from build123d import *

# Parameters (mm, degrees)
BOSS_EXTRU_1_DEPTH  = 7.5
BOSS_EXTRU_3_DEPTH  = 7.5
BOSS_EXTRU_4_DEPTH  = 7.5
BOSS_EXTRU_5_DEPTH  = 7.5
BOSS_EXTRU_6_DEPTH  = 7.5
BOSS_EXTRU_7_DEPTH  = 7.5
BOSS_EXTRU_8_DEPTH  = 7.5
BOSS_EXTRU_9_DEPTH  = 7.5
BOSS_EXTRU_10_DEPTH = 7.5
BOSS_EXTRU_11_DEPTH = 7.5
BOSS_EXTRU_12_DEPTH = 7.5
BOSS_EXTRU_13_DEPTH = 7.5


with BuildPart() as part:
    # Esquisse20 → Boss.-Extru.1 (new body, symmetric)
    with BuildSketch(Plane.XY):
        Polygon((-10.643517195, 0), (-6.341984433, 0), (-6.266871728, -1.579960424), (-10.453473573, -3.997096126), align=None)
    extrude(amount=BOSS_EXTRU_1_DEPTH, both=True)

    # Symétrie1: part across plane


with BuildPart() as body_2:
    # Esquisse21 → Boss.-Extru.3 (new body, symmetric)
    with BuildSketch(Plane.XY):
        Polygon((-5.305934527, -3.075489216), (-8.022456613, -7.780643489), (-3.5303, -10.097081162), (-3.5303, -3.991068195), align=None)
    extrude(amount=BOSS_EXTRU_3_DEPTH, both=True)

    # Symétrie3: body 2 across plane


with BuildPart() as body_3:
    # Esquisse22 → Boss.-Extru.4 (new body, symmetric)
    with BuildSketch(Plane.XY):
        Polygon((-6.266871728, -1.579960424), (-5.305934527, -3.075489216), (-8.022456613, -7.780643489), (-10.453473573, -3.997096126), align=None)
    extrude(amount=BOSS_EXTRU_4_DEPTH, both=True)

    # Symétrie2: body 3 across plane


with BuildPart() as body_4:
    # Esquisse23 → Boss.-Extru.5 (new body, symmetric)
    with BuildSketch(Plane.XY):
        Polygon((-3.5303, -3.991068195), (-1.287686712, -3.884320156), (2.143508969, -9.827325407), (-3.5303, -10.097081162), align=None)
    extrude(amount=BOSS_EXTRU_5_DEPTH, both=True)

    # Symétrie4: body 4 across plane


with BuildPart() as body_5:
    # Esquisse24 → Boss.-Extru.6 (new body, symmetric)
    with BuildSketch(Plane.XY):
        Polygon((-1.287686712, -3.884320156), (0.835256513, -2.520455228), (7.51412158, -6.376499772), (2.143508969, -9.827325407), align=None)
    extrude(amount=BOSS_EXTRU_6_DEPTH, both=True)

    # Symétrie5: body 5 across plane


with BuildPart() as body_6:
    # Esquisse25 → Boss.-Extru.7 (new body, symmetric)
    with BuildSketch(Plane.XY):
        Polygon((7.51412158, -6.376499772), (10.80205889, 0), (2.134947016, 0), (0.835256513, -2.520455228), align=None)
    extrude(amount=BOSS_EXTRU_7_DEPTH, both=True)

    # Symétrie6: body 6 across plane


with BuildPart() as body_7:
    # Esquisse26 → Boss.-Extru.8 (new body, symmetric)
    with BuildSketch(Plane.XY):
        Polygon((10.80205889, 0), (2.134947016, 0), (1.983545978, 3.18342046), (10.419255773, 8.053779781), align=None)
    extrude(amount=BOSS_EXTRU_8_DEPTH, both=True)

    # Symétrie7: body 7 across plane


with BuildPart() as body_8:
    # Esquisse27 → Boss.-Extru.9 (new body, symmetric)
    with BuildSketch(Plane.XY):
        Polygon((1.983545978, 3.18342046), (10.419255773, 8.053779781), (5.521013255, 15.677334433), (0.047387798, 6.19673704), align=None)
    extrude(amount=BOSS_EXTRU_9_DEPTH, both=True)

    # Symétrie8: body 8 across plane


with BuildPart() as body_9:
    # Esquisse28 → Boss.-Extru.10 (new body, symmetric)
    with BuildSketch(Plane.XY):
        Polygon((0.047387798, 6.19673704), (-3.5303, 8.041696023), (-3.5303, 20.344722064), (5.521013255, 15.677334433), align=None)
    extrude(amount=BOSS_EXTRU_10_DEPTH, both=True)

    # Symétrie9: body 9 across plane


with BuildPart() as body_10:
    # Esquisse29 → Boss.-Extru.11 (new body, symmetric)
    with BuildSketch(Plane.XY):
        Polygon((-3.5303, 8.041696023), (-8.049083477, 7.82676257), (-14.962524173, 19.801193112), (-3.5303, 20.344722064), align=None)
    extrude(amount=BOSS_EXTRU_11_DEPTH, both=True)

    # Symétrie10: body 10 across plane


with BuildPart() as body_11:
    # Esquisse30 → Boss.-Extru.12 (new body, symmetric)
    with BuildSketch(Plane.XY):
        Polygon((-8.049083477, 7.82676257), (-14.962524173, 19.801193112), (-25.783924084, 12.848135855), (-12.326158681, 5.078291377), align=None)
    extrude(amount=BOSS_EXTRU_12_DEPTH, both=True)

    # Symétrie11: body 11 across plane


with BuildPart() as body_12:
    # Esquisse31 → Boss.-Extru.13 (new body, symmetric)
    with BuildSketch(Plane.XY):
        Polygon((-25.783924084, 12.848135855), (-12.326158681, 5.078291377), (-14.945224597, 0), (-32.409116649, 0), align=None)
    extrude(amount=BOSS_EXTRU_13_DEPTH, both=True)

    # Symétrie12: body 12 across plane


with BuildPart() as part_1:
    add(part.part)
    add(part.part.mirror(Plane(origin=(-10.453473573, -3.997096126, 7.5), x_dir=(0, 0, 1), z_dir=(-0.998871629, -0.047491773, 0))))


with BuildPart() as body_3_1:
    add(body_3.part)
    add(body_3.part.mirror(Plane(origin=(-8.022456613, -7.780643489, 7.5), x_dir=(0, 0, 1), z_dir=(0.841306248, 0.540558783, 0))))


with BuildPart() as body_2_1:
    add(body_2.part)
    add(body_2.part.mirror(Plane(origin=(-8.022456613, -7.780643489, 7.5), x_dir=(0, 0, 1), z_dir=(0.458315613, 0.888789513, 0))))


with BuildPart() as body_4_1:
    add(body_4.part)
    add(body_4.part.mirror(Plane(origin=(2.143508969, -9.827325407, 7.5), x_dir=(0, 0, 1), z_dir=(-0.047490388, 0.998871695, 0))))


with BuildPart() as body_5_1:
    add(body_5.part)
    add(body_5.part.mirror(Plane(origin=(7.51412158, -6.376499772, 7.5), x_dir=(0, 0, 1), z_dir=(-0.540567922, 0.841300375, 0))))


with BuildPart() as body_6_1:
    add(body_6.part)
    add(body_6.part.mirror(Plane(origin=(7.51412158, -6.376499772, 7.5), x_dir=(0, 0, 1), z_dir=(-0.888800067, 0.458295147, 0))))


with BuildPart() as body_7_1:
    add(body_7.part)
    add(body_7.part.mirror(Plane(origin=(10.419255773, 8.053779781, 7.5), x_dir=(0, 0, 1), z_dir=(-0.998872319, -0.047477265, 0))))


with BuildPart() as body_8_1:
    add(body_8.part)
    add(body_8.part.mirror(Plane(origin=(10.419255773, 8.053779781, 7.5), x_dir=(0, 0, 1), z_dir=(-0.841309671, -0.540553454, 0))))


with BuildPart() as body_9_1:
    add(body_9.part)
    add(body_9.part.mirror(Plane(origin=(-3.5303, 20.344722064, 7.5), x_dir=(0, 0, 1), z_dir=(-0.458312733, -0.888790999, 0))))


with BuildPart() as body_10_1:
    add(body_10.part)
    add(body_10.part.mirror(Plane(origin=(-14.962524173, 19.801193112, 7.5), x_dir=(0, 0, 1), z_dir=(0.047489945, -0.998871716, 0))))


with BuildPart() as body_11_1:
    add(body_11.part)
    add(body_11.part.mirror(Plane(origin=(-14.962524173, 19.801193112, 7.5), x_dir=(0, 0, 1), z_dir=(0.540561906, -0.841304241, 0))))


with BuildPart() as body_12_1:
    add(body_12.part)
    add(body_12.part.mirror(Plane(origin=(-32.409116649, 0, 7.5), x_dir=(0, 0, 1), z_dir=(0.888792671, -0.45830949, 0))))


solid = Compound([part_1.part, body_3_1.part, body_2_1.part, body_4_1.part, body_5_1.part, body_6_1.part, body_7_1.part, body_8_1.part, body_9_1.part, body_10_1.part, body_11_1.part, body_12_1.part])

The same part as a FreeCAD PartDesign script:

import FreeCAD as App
import Part
import Sketcher
from FreeCAD import Vector
Q = App.Units.Quantity

doc = App.newDocument("Part")
body = doc.addObject("PartDesign::Body", "Body")

# Sketch on XY plane
sketch1 = body.newObject("Sketcher::SketchObject", "Sketch")
sketch1.AttachmentSupport = (doc.getObject("XY_Plane"), [""])
sketch1.MapMode = "FlatFace"
sketch1.addGeometry([
    Part.LineSegment(Vector(-6.341984, 0, 0), Vector(-10.643517, 0, 0)),
    Part.LineSegment(Vector(-10.643517, 0, 0), Vector(-10.453474, -3.997096, 0)),
    Part.LineSegment(Vector(-10.453474, -3.997096, 0), Vector(-6.266872, -1.57996, 0)),
    Part.LineSegment(Vector(-6.266872, -1.57996, 0), Vector(-6.341984, 0, 0)),
], False)
sketch1.addConstraint([
    Sketcher.Constraint("Coincident", 0, 2, 1, 1),
    Sketcher.Constraint("Coincident", 1, 2, 2, 1),
    Sketcher.Constraint("Coincident", 2, 2, 3, 1),
    Sketcher.Constraint("Coincident", 3, 2, 0, 1),
    Sketcher.Constraint("Horizontal", 0),
    Sketcher.Constraint("PointOnObject", 0, 2, -1),
    Sketcher.Constraint("Angle", 2, Q("30 deg")),
    Sketcher.Constraint("DistanceX", 1, 2, 2, 2, Q("4.186602 mm")),
    Sketcher.Constraint("Distance", 1, Q("4.001611 mm")),
    Sketcher.Constraint("DistanceX", 0, 2, 0, 1, Q("4.301533 mm")),
    Sketcher.Constraint("DistanceX", 2, 2, -1, 1, Q("6.266872 mm")),
    Sketcher.Constraint("DistanceY", 2, 2, -1, 1, Q("1.57996 mm")),
])
pad1 = body.newObject("PartDesign::Pad", "Pad")
pad1.Profile = sketch1
pad1.Length = 15
pad1.Midplane = True
body2 = doc.addObject("PartDesign::Body", "Body001")

# Sketch on XY plane
sketch2 = body2.newObject("Sketcher::SketchObject", "Sketch001")
sketch2.AttachmentSupport = (doc.getObject("XY_Plane001"), [""])
sketch2.MapMode = "FlatFace"
sketch2.addGeometry([
    Part.LineSegment(Vector(-5.305935, -3.075489, 0), Vector(-8.022457, -7.780643, 0)),
    Part.LineSegment(Vector(-8.022457, -7.780643, 0), Vector(-3.5303, -10.097081, 0)),
    Part.LineSegment(Vector(-3.5303, -10.097081, 0), Vector(-3.5303, -3.991068, 0)),
    Part.LineSegment(Vector(-3.5303, -3.991068, 0), Vector(-5.305935, -3.075489, 0)),
], False)
sketch2.addConstraint([
    Sketcher.Constraint("Coincident", 0, 2, 1, 1),
    Sketcher.Constraint("Coincident", 1, 2, 2, 1),
    Sketcher.Constraint("Coincident", 2, 2, 3, 1),
    Sketcher.Constraint("Coincident", 3, 2, 0, 1),
    Sketcher.Constraint("Vertical", 2),
    Sketcher.Constraint("Angle", 0, Q("-120 deg")),
    Sketcher.Constraint("DistanceX", 1, 2, -1, 1, Q("3.5303 mm")),
    Sketcher.Constraint("Distance", 1, Q("5.054241 mm")),
    Sketcher.Constraint("Distance", 3, Q("1.997789 mm")),
    Sketcher.Constraint("DistanceY", 2, 1, 2, 2, Q("6.106013 mm")),
    Sketcher.Constraint("DistanceY", 1, 2, -1, 1, Q("10.097081 mm")),
    Sketcher.Constraint("DistanceY", 3, 2, -1, 1, Q("3.075489 mm")),
])
pad2 = body2.newObject("PartDesign::Pad", "Pad001")
pad2.Profile = sketch2
pad2.Length = 15
pad2.Midplane = True
body3 = doc.addObject("PartDesign::Body", "Body002")

# Sketch on XY plane
sketch3 = body3.newObject("Sketcher::SketchObject", "Sketch002")
sketch3.AttachmentSupport = (doc.getObject("XY_Plane002"), [""])
sketch3.MapMode = "FlatFace"
sketch3.addGeometry([
    Part.LineSegment(Vector(-5.305935, -3.075489, 0), Vector(-6.266872, -1.57996, 0)),
    Part.LineSegment(Vector(-6.266872, -1.57996, 0), Vector(-10.453474, -3.997096, 0)),
    Part.LineSegment(Vector(-10.453474, -3.997096, 0), Vector(-8.022457, -7.780643, 0)),
    Part.LineSegment(Vector(-8.022457, -7.780643, 0), Vector(-5.305935, -3.075489, 0)),
], False)
sketch3.addConstraint([
    Sketcher.Constraint("Coincident", 0, 2, 1, 1),
    Sketcher.Constraint("Coincident", 1, 2, 2, 1),
    Sketcher.Constraint("Coincident", 2, 2, 3, 1),
    Sketcher.Constraint("Coincident", 3, 2, 0, 1),
    Sketcher.Constraint("Angle", 1, Q("-150 deg")),
    Sketcher.Constraint("Angle", 3, Q("60 deg")),
    Sketcher.Constraint("DistanceX", 1, 2, 0, 2, Q("4.186602 mm")),
    Sketcher.Constraint("Distance", 0, Q("1.777641 mm")),
    Sketcher.Constraint("Distance", 2, Q("4.49723 mm")),
    Sketcher.Constraint("DistanceX", 0, 2, -1, 1, Q("6.266872 mm")),
    Sketcher.Constraint("DistanceY", 0, 2, -1, 1, Q("1.57996 mm")),
    Sketcher.Constraint("DistanceY", 3, 2, -1, 1, Q("3.075489 mm")),
])
pad3 = body3.newObject("PartDesign::Pad", "Pad002")
pad3.Profile = sketch3
pad3.Length = 15
pad3.Midplane = True
body4 = doc.addObject("PartDesign::Body", "Body003")

# Sketch on XY plane
sketch4 = body4.newObject("Sketcher::SketchObject", "Sketch003")
sketch4.AttachmentSupport = (doc.getObject("XY_Plane003"), [""])
sketch4.MapMode = "FlatFace"
sketch4.addGeometry([
    Part.LineSegment(Vector(-1.287687, -3.88432, 0), Vector(-3.5303, -3.991068, 0)),
    Part.LineSegment(Vector(-3.5303, -3.991068, 0), Vector(-3.5303, -10.097081, 0)),
    Part.LineSegment(Vector(-3.5303, -10.097081, 0), Vector(2.143509, -9.827325, 0)),
    Part.LineSegment(Vector(2.143509, -9.827325, 0), Vector(-1.287687, -3.88432, 0)),
], False)
sketch4.addConstraint([
    Sketcher.Constraint("Coincident", 0, 2, 1, 1),
    Sketcher.Constraint("Coincident", 1, 2, 2, 1),
    Sketcher.Constraint("Coincident", 2, 2, 3, 1),
    Sketcher.Constraint("Coincident", 3, 2, 0, 1),
    Sketcher.Constraint("Vertical", 1),
    Sketcher.Constraint("Angle", 3, Q("120 deg")),
    Sketcher.Constraint("DistanceX", 0, 2, -1, 1, Q("3.5303 mm")),
    Sketcher.Constraint("Distance", 3, Q("6.862391 mm")),
    Sketcher.Constraint("DistanceY", 1, 2, 1, 1, Q("6.106013 mm")),
    Sketcher.Constraint("DistanceY", 0, 2, -1, 1, Q("3.991068 mm")),
    Sketcher.Constraint("DistanceX", -1, 1, 2, 2, Q("2.143509 mm")),
    Sketcher.Constraint("DistanceY", 3, 2, -1, 1, Q("3.88432 mm")),
])
pad4 = body4.newObject("PartDesign::Pad", "Pad003")
pad4.Profile = sketch4
pad4.Length = 15
pad4.Midplane = True
body5 = doc.addObject("PartDesign::Body", "Body004")

# Sketch on XY plane
sketch5 = body5.newObject("Sketcher::SketchObject", "Sketch004")
sketch5.AttachmentSupport = (doc.getObject("XY_Plane004"), [""])
sketch5.MapMode = "FlatFace"
sketch5.addGeometry([
    Part.LineSegment(Vector(0.835257, -2.520455, 0), Vector(-1.287687, -3.88432, 0)),
    Part.LineSegment(Vector(-1.287687, -3.88432, 0), Vector(2.143509, -9.827325, 0)),
    Part.LineSegment(Vector(2.143509, -9.827325, 0), Vector(7.514122, -6.3765, 0)),
    Part.LineSegment(Vector(7.514122, -6.3765, 0), Vector(0.835257, -2.520455, 0)),
], False)
sketch5.addConstraint([
    Sketcher.Constraint("Coincident", 0, 2, 1, 1),
    Sketcher.Constraint("Coincident", 1, 2, 2, 1),
    Sketcher.Constraint("Coincident", 2, 2, 3, 1),
    Sketcher.Constraint("Coincident", 3, 2, 0, 1),
    Sketcher.Constraint("Angle", 1, Q("-60 deg")),
    Sketcher.Constraint("Angle", 3, Q("150 deg")),
    Sketcher.Constraint("DistanceY", 2, 2, -1, 1, Q("6.3765 mm")),
    Sketcher.Constraint("Distance", 1, Q("6.862391 mm")),
    Sketcher.Constraint("Distance", 3, Q("7.712089 mm")),
    Sketcher.Constraint("DistanceY", 0, 2, -1, 1, Q("3.88432 mm")),
    Sketcher.Constraint("DistanceX", -1, 1, 1, 2, Q("2.143509 mm")),
    Sketcher.Constraint("DistanceX", -1, 1, 2, 2, Q("7.514122 mm")),
])
pad5 = body5.newObject("PartDesign::Pad", "Pad004")
pad5.Profile = sketch5
pad5.Length = 15
pad5.Midplane = True
body6 = doc.addObject("PartDesign::Body", "Body005")

# Sketch on XY plane
sketch6 = body6.newObject("Sketcher::SketchObject", "Sketch005")
sketch6.AttachmentSupport = (doc.getObject("XY_Plane005"), [""])
sketch6.MapMode = "FlatFace"
sketch6.addGeometry([
    Part.LineSegment(Vector(7.514122, -6.3765, 0), Vector(10.802059, 0, 0)),
    Part.LineSegment(Vector(10.802059, 0, 0), Vector(2.134947, 0, 0)),
    Part.LineSegment(Vector(2.134947, 0, 0), Vector(0.835257, -2.520455, 0)),
    Part.LineSegment(Vector(0.835257, -2.520455, 0), Vector(7.514122, -6.3765, 0)),
], False)
sketch6.addConstraint([
    Sketcher.Constraint("Coincident", 0, 2, 1, 1),
    Sketcher.Constraint("Coincident", 1, 2, 2, 1),
    Sketcher.Constraint("Coincident", 2, 2, 3, 1),
    Sketcher.Constraint("Coincident", 3, 2, 0, 1),
    Sketcher.Constraint("Horizontal", 1),
    Sketcher.Constraint("PointOnObject", 0, 2, -1),
    Sketcher.Constraint("Angle", 3, Q("-30 deg")),
    Sketcher.Constraint("DistanceX", 1, 2, 1, 1, Q("8.667112 mm")),
    Sketcher.Constraint("DistanceY", 3, 2, -1, 1, Q("6.3765 mm")),
    Sketcher.Constraint("Distance", 0, Q("7.174279 mm")),
    Sketcher.Constraint("Distance", 3, Q("7.712089 mm")),
    Sketcher.Constraint("DistanceX", -1, 1, 0, 2, Q("10.802059 mm")),
])
pad6 = body6.newObject("PartDesign::Pad", "Pad005")
pad6.Profile = sketch6
pad6.Length = 15
pad6.Midplane = True
body7 = doc.addObject("PartDesign::Body", "Body006")

# Sketch on XY plane
sketch7 = body7.newObject("Sketcher::SketchObject", "Sketch006")
sketch7.AttachmentSupport = (doc.getObject("XY_Plane006"), [""])
sketch7.MapMode = "FlatFace"
sketch7.addGeometry([
    Part.LineSegment(Vector(2.134947, 0, 0), Vector(10.802059, 0, 0)),
    Part.LineSegment(Vector(10.802059, 0, 0), Vector(10.419256, 8.05378, 0)),
    Part.LineSegment(Vector(10.419256, 8.05378, 0), Vector(1.983546, 3.18342, 0)),
    Part.LineSegment(Vector(1.983546, 3.18342, 0), Vector(2.134947, 0, 0)),
], False)
sketch7.addConstraint([
    Sketcher.Constraint("Coincident", 0, 2, 1, 1),
    Sketcher.Constraint("Coincident", 1, 2, 2, 1),
    Sketcher.Constraint("Coincident", 2, 2, 3, 1),
    Sketcher.Constraint("Coincident", 3, 2, 0, 1),
    Sketcher.Constraint("Horizontal", 0),
    Sketcher.Constraint("PointOnObject", 0, 2, -1),
    Sketcher.Constraint("Angle", 2, Q("-150 deg")),
    Sketcher.Constraint("DistanceX", 0, 1, 0, 2, Q("8.667112 mm")),
    Sketcher.Constraint("DistanceX", 2, 2, 3, 2, Q("0.151401 mm")),
    Sketcher.Constraint("Distance", 2, Q("9.740719 mm")),
    Sketcher.Constraint("Distance", 3, Q("3.187019 mm")),
    Sketcher.Constraint("DistanceX", -1, 1, 0, 2, Q("10.802059 mm")),
])
pad7 = body7.newObject("PartDesign::Pad", "Pad006")
pad7.Profile = sketch7
pad7.Length = 15
pad7.Midplane = True
body8 = doc.addObject("PartDesign::Body", "Body007")

# Sketch on XY plane
sketch8 = body8.newObject("Sketcher::SketchObject", "Sketch007")
sketch8.AttachmentSupport = (doc.getObject("XY_Plane007"), [""])
sketch8.MapMode = "FlatFace"
sketch8.addGeometry([
    Part.LineSegment(Vector(1.983546, 3.18342, 0), Vector(10.419256, 8.05378, 0)),
    Part.LineSegment(Vector(10.419256, 8.05378, 0), Vector(5.521013, 15.677334, 0)),
    Part.LineSegment(Vector(5.521013, 15.677334, 0), Vector(0.047388, 6.196737, 0)),
    Part.LineSegment(Vector(0.047388, 6.196737, 0), Vector(1.983546, 3.18342, 0)),
], False)
sketch8.addConstraint([
    Sketcher.Constraint("Coincident", 0, 2, 1, 1),
    Sketcher.Constraint("Coincident", 1, 2, 2, 1),
    Sketcher.Constraint("Coincident", 2, 2, 3, 1),
    Sketcher.Constraint("Coincident", 3, 2, 0, 1),
    Sketcher.Constraint("Angle", 0, Q("30 deg")),
    Sketcher.Constraint("Angle", 2, Q("-120 deg")),
    Sketcher.Constraint("Distance", 0, Q("9.740719 mm")),
    Sketcher.Constraint("Distance", 2, Q("10.947251 mm")),
    Sketcher.Constraint("Distance", 3, Q("3.581729 mm")),
    Sketcher.Constraint("DistanceY", -1, 1, 0, 2, Q("8.05378 mm")),
    Sketcher.Constraint("DistanceX", 2, 2, 3, 2, Q("1.936158 mm")),
    Sketcher.Constraint("DistanceX", -1, 1, 0, 2, Q("10.419256 mm")),
])
pad8 = body8.newObject("PartDesign::Pad", "Pad007")
pad8.Profile = sketch8
pad8.Length = 15
pad8.Midplane = True
body9 = doc.addObject("PartDesign::Body", "Body008")

# Sketch on XY plane
sketch9 = body9.newObject("Sketcher::SketchObject", "Sketch008")
sketch9.AttachmentSupport = (doc.getObject("XY_Plane008"), [""])
sketch9.MapMode = "FlatFace"
sketch9.addGeometry([
    Part.LineSegment(Vector(-3.5303, 8.041696, 0), Vector(0.047388, 6.196737, 0)),
    Part.LineSegment(Vector(0.047388, 6.196737, 0), Vector(5.521013, 15.677334, 0)),
    Part.LineSegment(Vector(5.521013, 15.677334, 0), Vector(-3.5303, 20.344722, 0)),
    Part.LineSegment(Vector(-3.5303, 20.344722, 0), Vector(-3.5303, 8.041696, 0)),
], False)
sketch9.addConstraint([
    Sketcher.Constraint("Coincident", 0, 2, 1, 1),
    Sketcher.Constraint("Coincident", 1, 2, 2, 1),
    Sketcher.Constraint("Coincident", 2, 2, 3, 1),
    Sketcher.Constraint("Coincident", 3, 2, 0, 1),
    Sketcher.Constraint("Vertical", 3),
    Sketcher.Constraint("Angle", 1, Q("60 deg")),
    Sketcher.Constraint("DistanceX", 2, 2, -1, 1, Q("3.5303 mm")),
    Sketcher.Constraint("Distance", 1, Q("10.947251 mm")),
    Sketcher.Constraint("Distance", 2, Q("10.183849 mm")),
    Sketcher.Constraint("DistanceY", 3, 2, 3, 1, Q("12.303026 mm")),
    Sketcher.Constraint("DistanceY", 0, 2, 3, 2, Q("1.844959 mm")),
    Sketcher.Constraint("DistanceY", -1, 1, 0, 2, Q("6.196737 mm")),
])
pad9 = body9.newObject("PartDesign::Pad", "Pad008")
pad9.Profile = sketch9
pad9.Length = 15
pad9.Midplane = True
body10 = doc.addObject("PartDesign::Body", "Body009")

# Sketch on XY plane
sketch10 = body10.newObject("Sketcher::SketchObject", "Sketch009")
sketch10.AttachmentSupport = (doc.getObject("XY_Plane009"), [""])
sketch10.MapMode = "FlatFace"
sketch10.addGeometry([
    Part.LineSegment(Vector(-8.049083, 7.826763, 0), Vector(-3.5303, 8.041696, 0)),
    Part.LineSegment(Vector(-3.5303, 8.041696, 0), Vector(-3.5303, 20.344722, 0)),
    Part.LineSegment(Vector(-3.5303, 20.344722, 0), Vector(-14.962524, 19.801193, 0)),
    Part.LineSegment(Vector(-14.962524, 19.801193, 0), Vector(-8.049083, 7.826763, 0)),
], False)
sketch10.addConstraint([
    Sketcher.Constraint("Coincident", 0, 2, 1, 1),
    Sketcher.Constraint("Coincident", 1, 2, 2, 1),
    Sketcher.Constraint("Coincident", 2, 2, 3, 1),
    Sketcher.Constraint("Coincident", 3, 2, 0, 1),
    Sketcher.Constraint("Vertical", 1),
    Sketcher.Constraint("Angle", 3, Q("-60 deg")),
    Sketcher.Constraint("DistanceX", 0, 2, -1, 1, Q("3.5303 mm")),
    Sketcher.Constraint("Distance", 3, Q("13.826881 mm")),
    Sketcher.Constraint("DistanceY", 1, 1, 1, 2, Q("12.303026 mm")),
    Sketcher.Constraint("DistanceY", 2, 2, 1, 2, Q("0.543529 mm")),
    Sketcher.Constraint("Distance", 0, Q("4.523892 mm")),
    Sketcher.Constraint("DistanceY", -1, 1, 0, 2, Q("8.041696 mm")),
])
pad10 = body10.newObject("PartDesign::Pad", "Pad009")
pad10.Profile = sketch10
pad10.Length = 15
pad10.Midplane = True
body11 = doc.addObject("PartDesign::Body", "Body010")

# Sketch on XY plane
sketch11 = body11.newObject("Sketcher::SketchObject", "Sketch010")
sketch11.AttachmentSupport = (doc.getObject("XY_Plane010"), [""])
sketch11.MapMode = "FlatFace"
sketch11.addGeometry([
    Part.LineSegment(Vector(-8.049083, 7.826763, 0), Vector(-14.962524, 19.801193, 0)),
    Part.LineSegment(Vector(-14.962524, 19.801193, 0), Vector(-25.783924, 12.848136, 0)),
    Part.LineSegment(Vector(-25.783924, 12.848136, 0), Vector(-12.326159, 5.078291, 0)),
    Part.LineSegment(Vector(-12.326159, 5.078291, 0), Vector(-8.049083, 7.826763, 0)),
], False)
sketch11.addConstraint([
    Sketcher.Constraint("Coincident", 0, 2, 1, 1),
    Sketcher.Constraint("Coincident", 1, 2, 2, 1),
    Sketcher.Constraint("Coincident", 2, 2, 3, 1),
    Sketcher.Constraint("Coincident", 3, 2, 0, 1),
    Sketcher.Constraint("Angle", 0, Q("120 deg")),
    Sketcher.Constraint("Angle", 2, Q("-30 deg")),
    Sketcher.Constraint("DistanceX", 1, 2, 0, 2, Q("10.8214 mm")),
    Sketcher.Constraint("DistanceY", 2, 2, 0, 2, Q("14.722902 mm")),
    Sketcher.Constraint("Distance", 0, Q("13.826881 mm")),
    Sketcher.Constraint("Distance", 2, Q("15.539689 mm")),
    Sketcher.Constraint("DistanceX", 2, 2, -1, 1, Q("12.326159 mm")),
    Sketcher.Constraint("DistanceY", -1, 1, 2, 2, Q("5.078291 mm")),
])
pad11 = body11.newObject("PartDesign::Pad", "Pad010")
pad11.Profile = sketch11
pad11.Length = 15
pad11.Midplane = True
body12 = doc.addObject("PartDesign::Body", "Body011")

# Sketch on XY plane
sketch12 = body12.newObject("Sketcher::SketchObject", "Sketch011")
sketch12.AttachmentSupport = (doc.getObject("XY_Plane011"), [""])
sketch12.MapMode = "FlatFace"
sketch12.addGeometry([
    Part.LineSegment(Vector(-12.326159, 5.078291, 0), Vector(-25.783924, 12.848136, 0)),
    Part.LineSegment(Vector(-25.783924, 12.848136, 0), Vector(-32.409117, 0, 0)),
    Part.LineSegment(Vector(-32.409117, 0, 0), Vector(-14.945225, 0, 0)),
    Part.LineSegment(Vector(-14.945225, 0, 0), Vector(-12.326159, 5.078291, 0)),
], False)
sketch12.addConstraint([
    Sketcher.Constraint("Coincident", 0, 2, 1, 1),
    Sketcher.Constraint("Coincident", 1, 2, 2, 1),
    Sketcher.Constraint("Coincident", 2, 2, 3, 1),
    Sketcher.Constraint("Coincident", 3, 2, 0, 1),
    Sketcher.Constraint("Horizontal", 2),
    Sketcher.Constraint("PointOnObject", 1, 2, -1),
    Sketcher.Constraint("Angle", 0, Q("150 deg")),
    Sketcher.Constraint("DistanceX", 0, 2, 2, 2, Q("10.838699 mm")),
    Sketcher.Constraint("Distance", 0, Q("15.539689 mm")),
    Sketcher.Constraint("Distance", 3, Q("5.713891 mm")),
    Sketcher.Constraint("DistanceX", 2, 1, 2, 2, Q("17.463892 mm")),
    Sketcher.Constraint("DistanceX", 3, 2, -1, 1, Q("12.326159 mm")),
])
pad12 = body12.newObject("PartDesign::Pad", "Pad011")
pad12.Profile = sketch12
pad12.Length = 15
pad12.Midplane = True
body13 = doc.addObject("PartDesign::Body", "Body012")
doc.recompute()

body13.BaseFeature = body
doc.recompute()

mirroring = doc.addObject("Part::Mirroring", "Mirroring")
mirroring.Source = body
mirroring.Base = Vector(-10.453474, -3.997096, 7.5)
mirroring.Normal = Vector(-0.998871629, -0.047491773, 0)
body14 = doc.addObject("PartDesign::Body", "Body013")
body14.BaseFeature = mirroring
boolean = body13.newObject("PartDesign::Boolean", "Boolean")
boolean.Type = "Fuse"
boolean.addObjects([body14])
doc.recompute()
body15 = doc.addObject("PartDesign::Body", "Body014")
doc.recompute()

body15.BaseFeature = body3
doc.recompute()

mirroring2 = doc.addObject("Part::Mirroring", "Mirroring001")
mirroring2.Source = body3
mirroring2.Base = Vector(-8.022457, -7.780643, 7.5)
mirroring2.Normal = Vector(0.841306248, 0.540558783, 0)
body16 = doc.addObject("PartDesign::Body", "Body015")
body16.BaseFeature = mirroring2
boolean2 = body15.newObject("PartDesign::Boolean", "Boolean001")
boolean2.Type = "Fuse"
boolean2.addObjects([body16])
doc.recompute()
body17 = doc.addObject("PartDesign::Body", "Body016")
doc.recompute()

body17.BaseFeature = body2
doc.recompute()

mirroring3 = doc.addObject("Part::Mirroring", "Mirroring002")
mirroring3.Source = body2
mirroring3.Base = Vector(-8.022457, -7.780643, 7.5)
mirroring3.Normal = Vector(0.458315613, 0.888789513, 0)
body18 = doc.addObject("PartDesign::Body", "Body017")
body18.BaseFeature = mirroring3
boolean3 = body17.newObject("PartDesign::Boolean", "Boolean002")
boolean3.Type = "Fuse"
boolean3.addObjects([body18])
doc.recompute()
body19 = doc.addObject("PartDesign::Body", "Body018")
doc.recompute()

body19.BaseFeature = body4
doc.recompute()

mirroring4 = doc.addObject("Part::Mirroring", "Mirroring003")
mirroring4.Source = body4
mirroring4.Base = Vector(2.143509, -9.827325, 7.5)
mirroring4.Normal = Vector(-0.047490388, 0.998871695, 0)
body20 = doc.addObject("PartDesign::Body", "Body019")
body20.BaseFeature = mirroring4
boolean4 = body19.newObject("PartDesign::Boolean", "Boolean003")
boolean4.Type = "Fuse"
boolean4.addObjects([body20])
doc.recompute()
body21 = doc.addObject("PartDesign::Body", "Body020")
doc.recompute()

body21.BaseFeature = body5
doc.recompute()

mirroring5 = doc.addObject("Part::Mirroring", "Mirroring004")
mirroring5.Source = body5
mirroring5.Base = Vector(7.514122, -6.3765, 7.5)
mirroring5.Normal = Vector(-0.540567922, 0.841300375, 0)
body22 = doc.addObject("PartDesign::Body", "Body021")
body22.BaseFeature = mirroring5
boolean5 = body21.newObject("PartDesign::Boolean", "Boolean004")
boolean5.Type = "Fuse"
boolean5.addObjects([body22])
doc.recompute()
body23 = doc.addObject("PartDesign::Body", "Body022")
doc.recompute()

body23.BaseFeature = body6
doc.recompute()

mirroring6 = doc.addObject("Part::Mirroring", "Mirroring005")
mirroring6.Source = body6
mirroring6.Base = Vector(7.514122, -6.3765, 7.5)
mirroring6.Normal = Vector(-0.888800067, 0.458295147, 0)
body24 = doc.addObject("PartDesign::Body", "Body023")
body24.BaseFeature = mirroring6
boolean6 = body23.newObject("PartDesign::Boolean", "Boolean005")
boolean6.Type = "Fuse"
boolean6.addObjects([body24])
doc.recompute()
body25 = doc.addObject("PartDesign::Body", "Body024")
doc.recompute()

body25.BaseFeature = body7
doc.recompute()

mirroring7 = doc.addObject("Part::Mirroring", "Mirroring006")
mirroring7.Source = body7
mirroring7.Base = Vector(10.419256, 8.05378, 7.5)
mirroring7.Normal = Vector(-0.998872319, -0.047477265, 0)
body26 = doc.addObject("PartDesign::Body", "Body025")
body26.BaseFeature = mirroring7
boolean7 = body25.newObject("PartDesign::Boolean", "Boolean006")
boolean7.Type = "Fuse"
boolean7.addObjects([body26])
doc.recompute()
body27 = doc.addObject("PartDesign::Body", "Body026")
doc.recompute()

body27.BaseFeature = body8
doc.recompute()

mirroring8 = doc.addObject("Part::Mirroring", "Mirroring007")
mirroring8.Source = body8
mirroring8.Base = Vector(10.419256, 8.05378, 7.5)
mirroring8.Normal = Vector(-0.841309671, -0.540553454, 0)
body28 = doc.addObject("PartDesign::Body", "Body027")
body28.BaseFeature = mirroring8
boolean8 = body27.newObject("PartDesign::Boolean", "Boolean007")
boolean8.Type = "Fuse"
boolean8.addObjects([body28])
doc.recompute()
body29 = doc.addObject("PartDesign::Body", "Body028")
doc.recompute()

body29.BaseFeature = body9
doc.recompute()

mirroring9 = doc.addObject("Part::Mirroring", "Mirroring008")
mirroring9.Source = body9
mirroring9.Base = Vector(-3.5303, 20.344722, 7.5)
mirroring9.Normal = Vector(-0.458312733, -0.888790998, 0)
body30 = doc.addObject("PartDesign::Body", "Body029")
body30.BaseFeature = mirroring9
boolean9 = body29.newObject("PartDesign::Boolean", "Boolean008")
boolean9.Type = "Fuse"
boolean9.addObjects([body30])
doc.recompute()
body31 = doc.addObject("PartDesign::Body", "Body030")
doc.recompute()

body31.BaseFeature = body10
doc.recompute()

mirroring10 = doc.addObject("Part::Mirroring", "Mirroring009")
mirroring10.Source = body10
mirroring10.Base = Vector(-14.962524, 19.801193, 7.5)
mirroring10.Normal = Vector(0.047489945, -0.998871716, 0)
body32 = doc.addObject("PartDesign::Body", "Body031")
body32.BaseFeature = mirroring10
boolean10 = body31.newObject("PartDesign::Boolean", "Boolean009")
boolean10.Type = "Fuse"
boolean10.addObjects([body32])
doc.recompute()
body33 = doc.addObject("PartDesign::Body", "Body032")
doc.recompute()

body33.BaseFeature = body11
doc.recompute()

mirroring11 = doc.addObject("Part::Mirroring", "Mirroring010")
mirroring11.Source = body11
mirroring11.Base = Vector(-14.962524, 19.801193, 7.5)
mirroring11.Normal = Vector(0.540561906, -0.841304241, 0)
body34 = doc.addObject("PartDesign::Body", "Body033")
body34.BaseFeature = mirroring11
boolean11 = body33.newObject("PartDesign::Boolean", "Boolean010")
boolean11.Type = "Fuse"
boolean11.addObjects([body34])
doc.recompute()
body35 = doc.addObject("PartDesign::Body", "Body034")
doc.recompute()

body35.BaseFeature = body12
doc.recompute()

mirroring12 = doc.addObject("Part::Mirroring", "Mirroring011")
mirroring12.Source = body12
mirroring12.Base = Vector(-32.409117, 0, 7.5)
mirroring12.Normal = Vector(0.888792671, -0.45830949, 0)
body36 = doc.addObject("PartDesign::Body", "Body035")
body36.BaseFeature = mirroring12
boolean12 = body35.newObject("PartDesign::Boolean", "Boolean011")
boolean12.Type = "Fuse"
boolean12.addObjects([body36])
doc.recompute()
mirroring.Visibility = False
mirroring2.Visibility = False
mirroring3.Visibility = False
mirroring4.Visibility = False
mirroring5.Visibility = False
mirroring6.Visibility = False
mirroring7.Visibility = False
mirroring8.Visibility = False
mirroring9.Visibility = False
mirroring10.Visibility = False
mirroring11.Visibility = False
mirroring12.Visibility = False

doc.recompute()
